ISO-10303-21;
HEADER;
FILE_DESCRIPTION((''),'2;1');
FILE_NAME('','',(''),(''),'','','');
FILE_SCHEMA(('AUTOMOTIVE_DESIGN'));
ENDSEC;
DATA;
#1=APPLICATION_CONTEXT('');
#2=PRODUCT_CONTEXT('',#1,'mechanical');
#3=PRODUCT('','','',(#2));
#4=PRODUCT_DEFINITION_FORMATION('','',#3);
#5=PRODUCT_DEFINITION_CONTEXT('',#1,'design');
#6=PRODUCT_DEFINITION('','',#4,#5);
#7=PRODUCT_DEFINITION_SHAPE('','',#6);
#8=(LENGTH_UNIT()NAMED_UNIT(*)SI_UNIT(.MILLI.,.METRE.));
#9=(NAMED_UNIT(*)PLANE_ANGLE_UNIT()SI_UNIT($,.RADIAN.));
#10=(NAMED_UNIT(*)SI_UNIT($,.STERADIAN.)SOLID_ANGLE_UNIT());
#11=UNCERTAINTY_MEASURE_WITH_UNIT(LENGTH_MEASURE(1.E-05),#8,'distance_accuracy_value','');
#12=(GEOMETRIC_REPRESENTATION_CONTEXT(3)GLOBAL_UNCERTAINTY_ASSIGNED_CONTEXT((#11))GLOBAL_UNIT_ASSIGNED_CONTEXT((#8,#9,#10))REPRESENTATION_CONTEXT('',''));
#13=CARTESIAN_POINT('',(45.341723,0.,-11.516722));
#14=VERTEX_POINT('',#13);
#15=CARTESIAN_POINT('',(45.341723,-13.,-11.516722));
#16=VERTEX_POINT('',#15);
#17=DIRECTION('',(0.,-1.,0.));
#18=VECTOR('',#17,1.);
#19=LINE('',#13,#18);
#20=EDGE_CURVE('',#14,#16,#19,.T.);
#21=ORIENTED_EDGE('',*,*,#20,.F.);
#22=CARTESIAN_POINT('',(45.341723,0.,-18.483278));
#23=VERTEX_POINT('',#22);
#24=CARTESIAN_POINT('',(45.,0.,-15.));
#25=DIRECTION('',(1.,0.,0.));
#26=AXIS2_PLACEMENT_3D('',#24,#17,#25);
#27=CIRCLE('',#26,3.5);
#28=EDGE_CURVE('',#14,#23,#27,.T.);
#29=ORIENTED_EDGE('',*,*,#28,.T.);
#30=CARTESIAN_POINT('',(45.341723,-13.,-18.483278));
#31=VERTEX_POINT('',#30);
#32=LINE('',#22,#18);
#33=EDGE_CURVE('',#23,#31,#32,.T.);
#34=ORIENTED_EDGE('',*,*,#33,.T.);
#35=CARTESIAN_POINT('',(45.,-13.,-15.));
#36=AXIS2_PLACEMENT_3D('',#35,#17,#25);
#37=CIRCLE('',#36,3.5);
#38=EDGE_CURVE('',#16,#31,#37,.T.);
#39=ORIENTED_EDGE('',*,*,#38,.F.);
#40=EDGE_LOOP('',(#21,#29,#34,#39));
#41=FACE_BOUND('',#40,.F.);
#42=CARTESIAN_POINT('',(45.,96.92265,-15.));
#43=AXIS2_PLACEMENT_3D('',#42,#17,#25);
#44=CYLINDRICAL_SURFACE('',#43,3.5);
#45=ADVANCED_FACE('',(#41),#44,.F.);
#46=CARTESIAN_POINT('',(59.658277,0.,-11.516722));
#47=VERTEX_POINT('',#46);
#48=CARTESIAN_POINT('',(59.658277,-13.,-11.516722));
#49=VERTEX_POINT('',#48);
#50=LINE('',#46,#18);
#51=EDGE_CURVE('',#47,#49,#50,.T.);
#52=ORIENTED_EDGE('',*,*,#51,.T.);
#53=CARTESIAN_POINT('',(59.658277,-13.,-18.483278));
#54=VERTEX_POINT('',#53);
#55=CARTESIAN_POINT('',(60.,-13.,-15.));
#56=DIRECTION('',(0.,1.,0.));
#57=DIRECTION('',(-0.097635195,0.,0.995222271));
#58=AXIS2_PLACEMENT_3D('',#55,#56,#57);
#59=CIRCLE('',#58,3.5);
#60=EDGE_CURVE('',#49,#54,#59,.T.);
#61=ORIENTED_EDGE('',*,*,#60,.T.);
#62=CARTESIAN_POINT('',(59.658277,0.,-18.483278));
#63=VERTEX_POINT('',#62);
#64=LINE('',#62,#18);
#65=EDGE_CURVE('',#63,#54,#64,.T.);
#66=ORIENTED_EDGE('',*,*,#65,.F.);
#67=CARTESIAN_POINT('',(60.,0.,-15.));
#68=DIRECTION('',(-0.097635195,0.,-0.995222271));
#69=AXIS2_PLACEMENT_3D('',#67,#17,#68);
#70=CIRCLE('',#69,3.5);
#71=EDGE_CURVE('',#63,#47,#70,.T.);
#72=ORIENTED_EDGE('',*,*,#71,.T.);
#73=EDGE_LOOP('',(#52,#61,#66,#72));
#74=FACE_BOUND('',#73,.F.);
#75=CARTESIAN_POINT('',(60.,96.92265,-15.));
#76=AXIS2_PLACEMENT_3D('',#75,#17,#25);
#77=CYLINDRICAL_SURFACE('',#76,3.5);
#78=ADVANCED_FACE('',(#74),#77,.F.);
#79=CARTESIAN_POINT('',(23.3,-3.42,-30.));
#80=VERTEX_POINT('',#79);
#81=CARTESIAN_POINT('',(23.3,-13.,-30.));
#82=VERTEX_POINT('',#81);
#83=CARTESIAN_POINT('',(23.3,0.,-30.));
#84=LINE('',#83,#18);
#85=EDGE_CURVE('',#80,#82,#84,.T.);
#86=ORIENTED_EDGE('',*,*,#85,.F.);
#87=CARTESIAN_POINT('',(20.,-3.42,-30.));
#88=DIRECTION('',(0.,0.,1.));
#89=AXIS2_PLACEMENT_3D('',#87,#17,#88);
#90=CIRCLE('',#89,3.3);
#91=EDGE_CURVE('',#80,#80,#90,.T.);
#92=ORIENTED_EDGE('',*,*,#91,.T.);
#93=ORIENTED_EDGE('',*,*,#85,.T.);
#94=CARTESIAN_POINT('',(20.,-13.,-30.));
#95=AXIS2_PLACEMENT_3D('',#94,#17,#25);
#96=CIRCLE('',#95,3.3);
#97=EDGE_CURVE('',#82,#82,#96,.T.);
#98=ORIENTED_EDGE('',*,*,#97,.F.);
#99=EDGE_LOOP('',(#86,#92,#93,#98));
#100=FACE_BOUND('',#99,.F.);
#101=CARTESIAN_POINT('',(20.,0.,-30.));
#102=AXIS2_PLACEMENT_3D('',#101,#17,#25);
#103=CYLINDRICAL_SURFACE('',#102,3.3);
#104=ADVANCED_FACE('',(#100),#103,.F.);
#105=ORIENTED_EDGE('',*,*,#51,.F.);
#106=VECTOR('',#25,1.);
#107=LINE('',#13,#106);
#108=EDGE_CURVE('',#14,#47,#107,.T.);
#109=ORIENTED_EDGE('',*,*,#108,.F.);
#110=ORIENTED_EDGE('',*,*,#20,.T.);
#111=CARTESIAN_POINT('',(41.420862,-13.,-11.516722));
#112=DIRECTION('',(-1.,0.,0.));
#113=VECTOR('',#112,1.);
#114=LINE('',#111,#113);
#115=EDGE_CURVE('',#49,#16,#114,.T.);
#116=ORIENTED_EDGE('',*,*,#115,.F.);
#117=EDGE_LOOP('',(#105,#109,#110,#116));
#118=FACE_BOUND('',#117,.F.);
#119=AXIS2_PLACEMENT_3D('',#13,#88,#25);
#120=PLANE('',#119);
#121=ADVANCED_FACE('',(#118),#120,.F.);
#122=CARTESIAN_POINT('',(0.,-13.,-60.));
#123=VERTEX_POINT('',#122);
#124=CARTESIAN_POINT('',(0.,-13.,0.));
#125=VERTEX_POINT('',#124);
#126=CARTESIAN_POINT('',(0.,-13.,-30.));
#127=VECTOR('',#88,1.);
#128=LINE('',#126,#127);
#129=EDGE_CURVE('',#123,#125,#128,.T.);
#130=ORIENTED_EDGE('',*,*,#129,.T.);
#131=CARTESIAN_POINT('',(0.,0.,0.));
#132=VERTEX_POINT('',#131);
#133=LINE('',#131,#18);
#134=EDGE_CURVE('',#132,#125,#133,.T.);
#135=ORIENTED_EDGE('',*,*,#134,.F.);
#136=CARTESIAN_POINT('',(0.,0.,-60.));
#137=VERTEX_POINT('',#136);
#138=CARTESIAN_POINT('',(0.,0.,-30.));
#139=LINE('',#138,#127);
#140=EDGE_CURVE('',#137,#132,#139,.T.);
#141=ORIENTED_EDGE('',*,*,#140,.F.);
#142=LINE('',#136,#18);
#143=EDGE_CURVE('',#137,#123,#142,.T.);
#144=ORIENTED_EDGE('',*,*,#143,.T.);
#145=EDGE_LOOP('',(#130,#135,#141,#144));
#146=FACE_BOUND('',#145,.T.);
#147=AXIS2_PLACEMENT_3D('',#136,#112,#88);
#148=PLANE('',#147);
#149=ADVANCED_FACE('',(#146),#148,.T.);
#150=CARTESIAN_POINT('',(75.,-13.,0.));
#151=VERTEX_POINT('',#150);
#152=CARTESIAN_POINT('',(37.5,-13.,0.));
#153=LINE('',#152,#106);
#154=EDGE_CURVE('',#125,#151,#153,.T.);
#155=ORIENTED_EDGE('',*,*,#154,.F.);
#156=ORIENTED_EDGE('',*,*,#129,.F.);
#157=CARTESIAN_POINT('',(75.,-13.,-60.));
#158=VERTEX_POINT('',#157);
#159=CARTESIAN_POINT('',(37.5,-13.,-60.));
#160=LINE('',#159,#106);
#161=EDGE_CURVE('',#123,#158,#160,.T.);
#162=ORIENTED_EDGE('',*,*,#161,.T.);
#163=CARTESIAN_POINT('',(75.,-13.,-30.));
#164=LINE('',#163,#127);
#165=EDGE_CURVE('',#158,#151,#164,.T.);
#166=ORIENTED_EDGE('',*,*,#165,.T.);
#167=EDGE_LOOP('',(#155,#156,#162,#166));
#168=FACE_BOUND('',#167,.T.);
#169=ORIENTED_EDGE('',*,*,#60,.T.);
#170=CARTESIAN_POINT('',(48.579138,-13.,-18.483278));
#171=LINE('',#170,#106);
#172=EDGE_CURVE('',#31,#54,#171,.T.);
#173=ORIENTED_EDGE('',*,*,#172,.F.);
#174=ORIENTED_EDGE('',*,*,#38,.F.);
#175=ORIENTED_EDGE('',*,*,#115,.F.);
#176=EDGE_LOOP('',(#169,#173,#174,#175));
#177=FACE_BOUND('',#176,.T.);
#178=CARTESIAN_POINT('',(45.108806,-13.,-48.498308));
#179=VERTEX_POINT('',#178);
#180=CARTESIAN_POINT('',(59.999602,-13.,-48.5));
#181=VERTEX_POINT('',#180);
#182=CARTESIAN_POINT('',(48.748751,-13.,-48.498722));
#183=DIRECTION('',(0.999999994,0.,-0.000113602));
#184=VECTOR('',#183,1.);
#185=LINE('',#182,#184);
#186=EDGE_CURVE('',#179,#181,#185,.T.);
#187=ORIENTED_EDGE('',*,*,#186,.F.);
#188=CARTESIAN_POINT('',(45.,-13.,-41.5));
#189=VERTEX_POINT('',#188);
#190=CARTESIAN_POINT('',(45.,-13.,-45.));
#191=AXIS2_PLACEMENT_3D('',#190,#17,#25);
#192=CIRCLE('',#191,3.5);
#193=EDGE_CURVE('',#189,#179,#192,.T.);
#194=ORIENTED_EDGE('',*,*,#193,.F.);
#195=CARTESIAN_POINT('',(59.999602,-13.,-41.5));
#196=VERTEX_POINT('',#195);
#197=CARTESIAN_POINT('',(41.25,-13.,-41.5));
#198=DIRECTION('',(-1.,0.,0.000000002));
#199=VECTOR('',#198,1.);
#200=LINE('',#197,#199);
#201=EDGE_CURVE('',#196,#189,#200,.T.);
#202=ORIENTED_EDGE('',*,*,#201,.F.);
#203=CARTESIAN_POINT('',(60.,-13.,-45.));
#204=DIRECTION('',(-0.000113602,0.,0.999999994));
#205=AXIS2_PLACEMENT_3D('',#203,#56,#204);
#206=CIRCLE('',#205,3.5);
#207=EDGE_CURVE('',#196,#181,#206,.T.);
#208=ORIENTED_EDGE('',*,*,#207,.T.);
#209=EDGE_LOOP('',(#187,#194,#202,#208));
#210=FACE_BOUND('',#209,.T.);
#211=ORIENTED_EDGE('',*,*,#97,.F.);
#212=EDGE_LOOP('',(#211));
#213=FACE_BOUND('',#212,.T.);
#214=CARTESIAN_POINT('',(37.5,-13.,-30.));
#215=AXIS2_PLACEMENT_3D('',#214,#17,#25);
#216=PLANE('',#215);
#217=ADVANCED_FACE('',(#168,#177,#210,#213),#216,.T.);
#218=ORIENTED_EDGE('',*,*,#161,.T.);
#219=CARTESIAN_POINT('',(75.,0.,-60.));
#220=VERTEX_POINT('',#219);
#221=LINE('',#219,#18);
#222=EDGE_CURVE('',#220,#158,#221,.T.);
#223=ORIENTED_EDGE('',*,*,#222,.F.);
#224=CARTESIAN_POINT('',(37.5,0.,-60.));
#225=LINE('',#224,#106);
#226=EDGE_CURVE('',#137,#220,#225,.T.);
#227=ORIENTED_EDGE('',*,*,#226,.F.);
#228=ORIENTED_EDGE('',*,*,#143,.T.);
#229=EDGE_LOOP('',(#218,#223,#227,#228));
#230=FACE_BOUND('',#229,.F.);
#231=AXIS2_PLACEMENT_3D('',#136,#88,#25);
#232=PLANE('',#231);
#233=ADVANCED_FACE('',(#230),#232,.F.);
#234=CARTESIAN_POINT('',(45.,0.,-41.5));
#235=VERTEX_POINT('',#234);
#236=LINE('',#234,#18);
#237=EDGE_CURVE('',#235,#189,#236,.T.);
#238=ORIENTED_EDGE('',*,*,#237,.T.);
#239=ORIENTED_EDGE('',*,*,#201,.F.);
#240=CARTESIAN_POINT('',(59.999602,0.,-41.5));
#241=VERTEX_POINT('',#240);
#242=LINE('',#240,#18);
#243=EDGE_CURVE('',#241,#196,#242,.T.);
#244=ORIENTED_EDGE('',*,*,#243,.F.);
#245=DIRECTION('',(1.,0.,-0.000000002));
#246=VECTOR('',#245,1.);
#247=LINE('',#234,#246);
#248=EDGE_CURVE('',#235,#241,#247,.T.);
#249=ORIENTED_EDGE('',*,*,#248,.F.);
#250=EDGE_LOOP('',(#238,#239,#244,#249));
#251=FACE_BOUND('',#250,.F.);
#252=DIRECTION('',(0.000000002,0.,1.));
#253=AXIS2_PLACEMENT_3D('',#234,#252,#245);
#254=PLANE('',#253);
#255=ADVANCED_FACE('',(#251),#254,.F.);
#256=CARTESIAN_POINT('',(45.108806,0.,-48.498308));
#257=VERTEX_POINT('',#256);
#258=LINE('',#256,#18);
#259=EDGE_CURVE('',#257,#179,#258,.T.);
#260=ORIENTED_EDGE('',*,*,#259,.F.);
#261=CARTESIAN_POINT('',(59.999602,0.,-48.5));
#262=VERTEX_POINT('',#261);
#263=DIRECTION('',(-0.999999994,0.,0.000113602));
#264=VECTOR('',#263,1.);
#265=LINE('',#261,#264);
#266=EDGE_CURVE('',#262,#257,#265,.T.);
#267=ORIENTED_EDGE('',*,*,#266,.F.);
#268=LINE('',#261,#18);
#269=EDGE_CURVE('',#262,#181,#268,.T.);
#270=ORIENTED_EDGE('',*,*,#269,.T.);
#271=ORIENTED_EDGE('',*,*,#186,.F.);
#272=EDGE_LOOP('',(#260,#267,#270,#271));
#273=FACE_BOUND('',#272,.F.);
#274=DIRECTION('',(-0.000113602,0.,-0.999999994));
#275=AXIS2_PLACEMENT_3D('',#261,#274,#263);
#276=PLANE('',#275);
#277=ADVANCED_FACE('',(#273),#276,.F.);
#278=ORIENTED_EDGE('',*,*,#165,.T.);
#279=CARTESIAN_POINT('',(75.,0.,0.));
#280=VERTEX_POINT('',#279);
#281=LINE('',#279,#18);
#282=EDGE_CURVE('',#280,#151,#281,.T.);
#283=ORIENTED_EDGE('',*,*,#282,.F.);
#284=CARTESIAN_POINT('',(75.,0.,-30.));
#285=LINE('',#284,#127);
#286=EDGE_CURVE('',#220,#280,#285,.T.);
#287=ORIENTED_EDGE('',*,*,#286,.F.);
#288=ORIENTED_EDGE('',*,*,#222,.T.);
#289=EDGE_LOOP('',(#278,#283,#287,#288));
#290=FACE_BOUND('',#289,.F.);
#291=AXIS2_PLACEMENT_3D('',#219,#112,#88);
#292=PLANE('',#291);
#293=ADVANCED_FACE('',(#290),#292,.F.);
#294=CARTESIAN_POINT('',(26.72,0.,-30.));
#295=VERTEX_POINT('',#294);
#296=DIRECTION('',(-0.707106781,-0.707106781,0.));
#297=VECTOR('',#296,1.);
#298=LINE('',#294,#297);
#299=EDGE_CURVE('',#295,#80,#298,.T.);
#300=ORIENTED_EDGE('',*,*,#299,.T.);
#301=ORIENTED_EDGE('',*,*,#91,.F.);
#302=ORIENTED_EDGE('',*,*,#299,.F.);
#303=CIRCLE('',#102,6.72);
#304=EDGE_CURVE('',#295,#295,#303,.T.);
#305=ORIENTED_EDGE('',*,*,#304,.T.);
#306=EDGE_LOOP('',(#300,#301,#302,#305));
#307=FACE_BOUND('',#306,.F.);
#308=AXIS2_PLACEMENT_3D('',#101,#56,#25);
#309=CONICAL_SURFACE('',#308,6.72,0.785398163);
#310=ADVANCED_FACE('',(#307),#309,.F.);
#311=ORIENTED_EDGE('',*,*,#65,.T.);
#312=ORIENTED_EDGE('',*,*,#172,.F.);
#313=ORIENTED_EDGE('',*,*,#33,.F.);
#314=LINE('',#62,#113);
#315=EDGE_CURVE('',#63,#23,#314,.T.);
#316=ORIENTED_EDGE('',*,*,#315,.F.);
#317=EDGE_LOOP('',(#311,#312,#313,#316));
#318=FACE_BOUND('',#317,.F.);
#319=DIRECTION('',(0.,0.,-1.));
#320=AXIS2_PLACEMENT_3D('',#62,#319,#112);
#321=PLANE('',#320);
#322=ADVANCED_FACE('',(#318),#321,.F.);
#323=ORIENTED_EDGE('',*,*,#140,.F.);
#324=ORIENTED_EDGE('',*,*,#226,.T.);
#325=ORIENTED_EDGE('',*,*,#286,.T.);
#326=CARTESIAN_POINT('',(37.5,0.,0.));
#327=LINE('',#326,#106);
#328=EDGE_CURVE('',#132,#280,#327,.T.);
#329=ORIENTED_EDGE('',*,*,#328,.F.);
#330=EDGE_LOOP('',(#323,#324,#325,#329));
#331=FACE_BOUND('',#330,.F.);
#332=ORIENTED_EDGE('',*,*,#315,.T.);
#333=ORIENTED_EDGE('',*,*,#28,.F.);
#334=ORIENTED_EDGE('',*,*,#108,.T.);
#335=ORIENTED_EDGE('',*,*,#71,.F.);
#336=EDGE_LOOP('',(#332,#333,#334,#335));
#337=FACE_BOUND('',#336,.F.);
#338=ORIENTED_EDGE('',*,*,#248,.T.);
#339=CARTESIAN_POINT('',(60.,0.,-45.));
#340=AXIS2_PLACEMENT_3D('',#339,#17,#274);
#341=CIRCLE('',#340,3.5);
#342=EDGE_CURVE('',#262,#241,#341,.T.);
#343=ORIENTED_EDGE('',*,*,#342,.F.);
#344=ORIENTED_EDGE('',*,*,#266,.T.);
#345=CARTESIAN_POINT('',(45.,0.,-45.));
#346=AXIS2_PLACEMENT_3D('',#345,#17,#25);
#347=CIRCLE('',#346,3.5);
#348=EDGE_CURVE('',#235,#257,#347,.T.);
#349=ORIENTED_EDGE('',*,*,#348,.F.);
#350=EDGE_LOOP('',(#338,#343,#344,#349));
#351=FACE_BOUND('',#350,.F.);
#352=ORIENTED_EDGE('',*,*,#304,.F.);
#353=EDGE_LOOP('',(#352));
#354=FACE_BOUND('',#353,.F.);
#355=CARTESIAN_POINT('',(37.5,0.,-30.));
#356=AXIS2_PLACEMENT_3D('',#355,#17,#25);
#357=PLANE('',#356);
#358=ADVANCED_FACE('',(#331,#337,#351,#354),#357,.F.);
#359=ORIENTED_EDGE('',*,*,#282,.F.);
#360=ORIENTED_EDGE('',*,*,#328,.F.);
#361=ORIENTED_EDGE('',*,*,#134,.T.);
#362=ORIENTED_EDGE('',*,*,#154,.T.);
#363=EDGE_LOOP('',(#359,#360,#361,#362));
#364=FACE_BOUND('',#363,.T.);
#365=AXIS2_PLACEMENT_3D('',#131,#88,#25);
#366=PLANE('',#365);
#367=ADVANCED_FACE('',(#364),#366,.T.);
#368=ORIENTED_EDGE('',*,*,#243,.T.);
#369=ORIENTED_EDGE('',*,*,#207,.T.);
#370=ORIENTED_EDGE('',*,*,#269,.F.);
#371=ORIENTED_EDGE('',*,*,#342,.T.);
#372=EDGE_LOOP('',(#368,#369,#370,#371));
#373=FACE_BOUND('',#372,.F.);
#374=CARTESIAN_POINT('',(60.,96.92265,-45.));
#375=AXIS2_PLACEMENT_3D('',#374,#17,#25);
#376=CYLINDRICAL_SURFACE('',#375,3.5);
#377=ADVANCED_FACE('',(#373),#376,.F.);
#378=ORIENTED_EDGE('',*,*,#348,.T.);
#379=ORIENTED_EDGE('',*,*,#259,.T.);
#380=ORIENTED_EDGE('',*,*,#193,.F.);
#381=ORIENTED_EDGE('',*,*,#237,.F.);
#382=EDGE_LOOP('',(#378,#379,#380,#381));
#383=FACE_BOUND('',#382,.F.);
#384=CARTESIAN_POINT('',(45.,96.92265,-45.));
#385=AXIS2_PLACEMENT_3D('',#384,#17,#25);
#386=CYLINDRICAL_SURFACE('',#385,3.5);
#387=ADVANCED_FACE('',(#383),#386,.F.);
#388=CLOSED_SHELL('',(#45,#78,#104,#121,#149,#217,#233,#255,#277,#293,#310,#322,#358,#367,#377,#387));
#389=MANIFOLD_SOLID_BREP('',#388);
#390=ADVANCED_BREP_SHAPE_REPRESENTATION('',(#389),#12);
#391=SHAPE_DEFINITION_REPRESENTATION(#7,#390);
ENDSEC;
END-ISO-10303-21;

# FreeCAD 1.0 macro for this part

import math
import FreeCAD as App
import Part
import Sketcher
Q = App.Units.Quantity

doc = App.newDocument("Part")
params = doc.addObject("Spreadsheet::Sheet", "Params")
for row, (alias, value) in enumerate([
    ("sketch1_width", "75 mm"),
    ("sketch1_height", "60 mm"),
    ("pad1_length", "13 mm"),
    ("sketch2_diameter", "6.6 mm"),
    ("hole_diameter", "6.6 mm"),
    ("hole_csink_diameter", "13.44 mm"),
    ("sketch3_diameter", "7 mm"),
    ("hole2_diameter", "7 mm"),
    ("sketch4_height", "7 mm"),
    ("pocket1_length", "25 mm"),
    ("sketch5_radius", "3.5 mm"),
    ("pocket2_length", "25 mm"),
], start=1):
    params.set(f"A{row}", alias)
    params.set(f"B{row}", "=" + value)
    params.setAlias(f"B{row}", alias)

body = doc.addObject("PartDesign::Body", "Body")

sketch1 = body.newObject("Sketcher::SketchObject", "Sketch")
sketch1.AttachmentSupport = (doc.getObject("XZ_Plane"), [""])
sketch1.MapMode = "FlatFace"
sketch1.addGeometry([
    Part.LineSegment(App.Vector(0, 0, 0), App.Vector(0, -60, 0)),
    Part.LineSegment(App.Vector(0, -60, 0), App.Vector(75, -60, 0)),
    Part.LineSegment(App.Vector(75, -60, 0), App.Vector(75, 0, 0)),
    Part.LineSegment(App.Vector(75, 0, 0), App.Vector(0, 0, 0)),
], False)
sketch1.addConstraint([
    Sketcher.Constraint("Coincident", 0, 2, 1, 1),
    Sketcher.Constraint("Coincident", 1, 2, 2, 1),
    Sketcher.Constraint("Coincident", 2, 2, 3, 1),
    Sketcher.Constraint("Coincident", 3, 2, 0, 1),
    Sketcher.Constraint("Vertical", 0),
    Sketcher.Constraint("Horizontal", 1),
    Sketcher.Constraint("Vertical", 2),
    Sketcher.Constraint("Horizontal", 3),
    Sketcher.Constraint("Coincident", 3, 2, -1, 1),
    Sketcher.Constraint("DistanceX", 1, 1, 1, 2, Q("75 mm")),
    Sketcher.Constraint("DistanceY", 0, 2, 0, 1, Q("60 mm")),
])
sketch1.setExpression("Constraints[9]", "Params.sketch1_width")
sketch1.setExpression("Constraints[10]", "Params.sketch1_height")
pad1 = body.newObject("PartDesign::Pad", "Pad")
pad1.Profile = sketch1
pad1.setExpression("Length", "Params.pad1_length")

sketch2 = body.newObject("Sketcher::SketchObject", "Sketch001")
sketch2.AttachmentSupport = (doc.getObject("XZ_Plane"), [""])
sketch2.MapMode = "FlatFace"
sketch2.addGeometry(Part.Circle(App.Vector(20, -30, 0), App.Vector(0, 0, 1), 3.3), False)
sketch2.addConstraint([
    Sketcher.Constraint("Diameter", 0, Q("6.6 mm")),
    Sketcher.Constraint("DistanceX", -1, 1, 0, 3, Q("20 mm")),
    Sketcher.Constraint("DistanceY", 0, 3, -1, 1, Q("30 mm")),
])
sketch2.setExpression("Constraints[0]", "Params.sketch2_diameter")
doc.recompute()
hole = body.newObject("PartDesign::Hole", "Hole")
hole.Profile = sketch2
hole.ThreadType = "None"
hole.setExpression("Diameter", "Params.hole_diameter")
hole.DepthType = "ThroughAll"
hole.HoleCutType = "Countersink"
hole.setExpression("HoleCutDiameter", "Params.hole_csink_diameter")
hole.HoleCutCountersinkAngle = 90
hole.Reversed = True

sketch3 = body.newObject("Sketcher::SketchObject", "Sketch002")
sketch3.AttachmentSupport = (doc.getObject("XZ_Plane"), [""])
sketch3.MapMode = "FlatFace"
sketch3.addGeometry([
    Part.Circle(App.Vector(45, -45, 0), App.Vector(0, 0, 1), 3.5),
    Part.Circle(App.Vector(60, -45, 0), App.Vector(0, 0, 1), 3.5),
    Part.Circle(App.Vector(60, -15, 0), App.Vector(0, 0, 1), 3.5),
    Part.Circle(App.Vector(45, -15, 0), App.Vector(0, 0, 1), 3.5),
], False)
sketch3.addConstraint([
    Sketcher.Constraint("Equal", 0, 1),
    Sketcher.Constraint("Equal", 1, 2),
    Sketcher.Constraint("Equal", 2, 3),
    Sketcher.Constraint("Horizontal", 0, 3, 1, 3),
    Sketcher.Constraint("Horizontal", 2, 3, 3, 3),
    Sketcher.Constraint("Vertical", 1, 3, 2, 3),
    Sketcher.Constraint("Vertical", 0, 3, 3, 3),
    Sketcher.Constraint("Diameter", 0, Q("7 mm")),
    Sketcher.Constraint("DistanceX", -1, 1, 0, 3, Q("45 mm")),
    Sketcher.Constraint("DistanceY", 0, 3, -1, 1, Q("45 mm")),
    Sketcher.Constraint("DistanceX", -1, 1, 1, 3, Q("60 mm")),
    Sketcher.Constraint("DistanceY", 2, 3, -1, 1, Q("15 mm")),
])
sketch3.setExpression("Constraints[7]", "Params.sketch3_diameter")
doc.recompute()
hole2 = body.newObject("PartDesign::Hole", "Hole001")
hole2.Profile = sketch3
hole2.ThreadType = "None"
hole2.setExpression("Diameter", "Params.hole2_diameter")
hole2.DepthType = "ThroughAll"
hole2.Reversed = True

sketch4 = body.newObject("Sketcher::SketchObject", "Sketch003")
sketch4.AttachmentSupport = (doc.getObject("XZ_Plane"), [""])
sketch4.MapMode = "FlatFace"
sketch4.addGeometry([
    Part.LineSegment(App.Vector(60, -48, 0), App.Vector(45, -48, 0)),
    Part.LineSegment(App.Vector(45, -48, 0), App.Vector(45, -42, 0)),
    Part.LineSegment(App.Vector(45, -42, 0), App.Vector(60, -42, 0)),
    Part.LineSegment(App.Vector(60, -42, 0), App.Vector(60, -48, 0)),
], False)
sketch4.addConstraint([
    Sketcher.Constraint("Coincident", 0, 2, 1, 1),
    Sketcher.Constraint("Coincident", 1, 2, 2, 1),
    Sketcher.Constraint("Coincident", 2, 2, 3, 1),
    Sketcher.Constraint("Coincident", 3, 2, 0, 1),
    Sketcher.Constraint("Horizontal", 2),
    Sketcher.Constraint("Vertical", 3),
    Sketcher.Constraint("DistanceY", 3, 2, 3, 1, Q("7 mm")),
    Sketcher.Constraint("DistanceX", -1, 1, 1, 2, Q("45 mm")),
    Sketcher.Constraint("DistanceY", 1, 2, -1, 1, Q("41.5 mm")),
    Sketcher.Constraint("DistanceX", 2, 1, 2, 2, Q("14.999602 mm")),
    Sketcher.Constraint("DistanceY", 0, 2, -1, 1, Q("48.498308 mm")),
    Sketcher.Constraint("Distance", 0, Q("14.890797 mm")),
])
sketch4.setExpression("Constraints[6]", "Params.sketch4_height")
pocket1 = body.newObject("PartDesign::Pocket", "Pocket")
pocket1.Profile = sketch4
pocket1.setExpression("Length", "Params.pocket1_length")
pocket1.Reversed = True

sketch5 = body.newObject("Sketcher::SketchObject", "Sketch004")
sketch5.AttachmentSupport = (doc.getObject("XZ_Plane"), [""])
sketch5.MapMode = "FlatFace"
sketch5.addGeometry([
    Part.LineSegment(App.Vector(45.3, -11.5, 0), App.Vector(59.7, -11.5, 0)),
    Part.ArcOfCircle(Part.Circle(App.Vector(60, -15, 0), App.Vector(0, 0, 1), 3.5), math.radians(96), math.radians(180)),
    Part.ArcOfCircle(Part.Circle(App.Vector(60, -15, 0), App.Vector(0, 0, 1), 3.5), math.radians(180), math.radians(264)),
    Part.LineSegment(App.Vector(59.7, -18.5, 0), App.Vector(45.3, -18.5, 0)),
    Part.ArcOfCircle(Part.Circle(App.Vector(45, -15, 0), App.Vector(0, 0, 1), 3.5), math.radians(-84), math.radians(84)),
], False)
sketch5.addConstraint([
    Sketcher.Constraint("Coincident", 0, 2, 1, 1),
    Sketcher.Constraint("Tangent", 1, 2, 2, 1),
    Sketcher.Constraint("Coincident", 2, 2, 3, 1),
    Sketcher.Constraint("Coincident", 3, 2, 4, 1),
    Sketcher.Constraint("Coincident", 4, 2, 0, 1),
    Sketcher.Constraint("Horizontal", 0),
    Sketcher.Constraint("Horizontal", 3),
    Sketcher.Constraint("Equal", 1, 2),
    Sketcher.Constraint("Equal", 2, 4),
    Sketcher.Constraint("Horizontal", 2, 3, 4, 3),
    Sketcher.Constraint("Horizontal", 4, 3, 1, 2),
    Sketcher.Constraint("Vertical", 0, 2, 2, 2),
    Sketcher.Constraint("Radius", 1, Q("3.5 mm")),
    Sketcher.Constraint("DistanceX", -1, 1, 1, 3, Q("60 mm")),
    Sketcher.Constraint("DistanceY", 1, 3, -1, 1, Q("15 mm")),
    Sketcher.Constraint("DistanceX", -1, 1, 4, 3, Q("45 mm")),
    Sketcher.Constraint("DistanceX", 0, 1, 0, 2, Q("14.316554 mm")),
])
sketch5.setExpression("Constraints[12]", "Params.sketch5_radius")
pocket2 = body.newObject("PartDesign::Pocket", "Pocket001")
pocket2.Profile = sketch5
pocket2.setExpression("Length", "Params.pocket2_length")
pocket2.Reversed = True

doc.recompute()
